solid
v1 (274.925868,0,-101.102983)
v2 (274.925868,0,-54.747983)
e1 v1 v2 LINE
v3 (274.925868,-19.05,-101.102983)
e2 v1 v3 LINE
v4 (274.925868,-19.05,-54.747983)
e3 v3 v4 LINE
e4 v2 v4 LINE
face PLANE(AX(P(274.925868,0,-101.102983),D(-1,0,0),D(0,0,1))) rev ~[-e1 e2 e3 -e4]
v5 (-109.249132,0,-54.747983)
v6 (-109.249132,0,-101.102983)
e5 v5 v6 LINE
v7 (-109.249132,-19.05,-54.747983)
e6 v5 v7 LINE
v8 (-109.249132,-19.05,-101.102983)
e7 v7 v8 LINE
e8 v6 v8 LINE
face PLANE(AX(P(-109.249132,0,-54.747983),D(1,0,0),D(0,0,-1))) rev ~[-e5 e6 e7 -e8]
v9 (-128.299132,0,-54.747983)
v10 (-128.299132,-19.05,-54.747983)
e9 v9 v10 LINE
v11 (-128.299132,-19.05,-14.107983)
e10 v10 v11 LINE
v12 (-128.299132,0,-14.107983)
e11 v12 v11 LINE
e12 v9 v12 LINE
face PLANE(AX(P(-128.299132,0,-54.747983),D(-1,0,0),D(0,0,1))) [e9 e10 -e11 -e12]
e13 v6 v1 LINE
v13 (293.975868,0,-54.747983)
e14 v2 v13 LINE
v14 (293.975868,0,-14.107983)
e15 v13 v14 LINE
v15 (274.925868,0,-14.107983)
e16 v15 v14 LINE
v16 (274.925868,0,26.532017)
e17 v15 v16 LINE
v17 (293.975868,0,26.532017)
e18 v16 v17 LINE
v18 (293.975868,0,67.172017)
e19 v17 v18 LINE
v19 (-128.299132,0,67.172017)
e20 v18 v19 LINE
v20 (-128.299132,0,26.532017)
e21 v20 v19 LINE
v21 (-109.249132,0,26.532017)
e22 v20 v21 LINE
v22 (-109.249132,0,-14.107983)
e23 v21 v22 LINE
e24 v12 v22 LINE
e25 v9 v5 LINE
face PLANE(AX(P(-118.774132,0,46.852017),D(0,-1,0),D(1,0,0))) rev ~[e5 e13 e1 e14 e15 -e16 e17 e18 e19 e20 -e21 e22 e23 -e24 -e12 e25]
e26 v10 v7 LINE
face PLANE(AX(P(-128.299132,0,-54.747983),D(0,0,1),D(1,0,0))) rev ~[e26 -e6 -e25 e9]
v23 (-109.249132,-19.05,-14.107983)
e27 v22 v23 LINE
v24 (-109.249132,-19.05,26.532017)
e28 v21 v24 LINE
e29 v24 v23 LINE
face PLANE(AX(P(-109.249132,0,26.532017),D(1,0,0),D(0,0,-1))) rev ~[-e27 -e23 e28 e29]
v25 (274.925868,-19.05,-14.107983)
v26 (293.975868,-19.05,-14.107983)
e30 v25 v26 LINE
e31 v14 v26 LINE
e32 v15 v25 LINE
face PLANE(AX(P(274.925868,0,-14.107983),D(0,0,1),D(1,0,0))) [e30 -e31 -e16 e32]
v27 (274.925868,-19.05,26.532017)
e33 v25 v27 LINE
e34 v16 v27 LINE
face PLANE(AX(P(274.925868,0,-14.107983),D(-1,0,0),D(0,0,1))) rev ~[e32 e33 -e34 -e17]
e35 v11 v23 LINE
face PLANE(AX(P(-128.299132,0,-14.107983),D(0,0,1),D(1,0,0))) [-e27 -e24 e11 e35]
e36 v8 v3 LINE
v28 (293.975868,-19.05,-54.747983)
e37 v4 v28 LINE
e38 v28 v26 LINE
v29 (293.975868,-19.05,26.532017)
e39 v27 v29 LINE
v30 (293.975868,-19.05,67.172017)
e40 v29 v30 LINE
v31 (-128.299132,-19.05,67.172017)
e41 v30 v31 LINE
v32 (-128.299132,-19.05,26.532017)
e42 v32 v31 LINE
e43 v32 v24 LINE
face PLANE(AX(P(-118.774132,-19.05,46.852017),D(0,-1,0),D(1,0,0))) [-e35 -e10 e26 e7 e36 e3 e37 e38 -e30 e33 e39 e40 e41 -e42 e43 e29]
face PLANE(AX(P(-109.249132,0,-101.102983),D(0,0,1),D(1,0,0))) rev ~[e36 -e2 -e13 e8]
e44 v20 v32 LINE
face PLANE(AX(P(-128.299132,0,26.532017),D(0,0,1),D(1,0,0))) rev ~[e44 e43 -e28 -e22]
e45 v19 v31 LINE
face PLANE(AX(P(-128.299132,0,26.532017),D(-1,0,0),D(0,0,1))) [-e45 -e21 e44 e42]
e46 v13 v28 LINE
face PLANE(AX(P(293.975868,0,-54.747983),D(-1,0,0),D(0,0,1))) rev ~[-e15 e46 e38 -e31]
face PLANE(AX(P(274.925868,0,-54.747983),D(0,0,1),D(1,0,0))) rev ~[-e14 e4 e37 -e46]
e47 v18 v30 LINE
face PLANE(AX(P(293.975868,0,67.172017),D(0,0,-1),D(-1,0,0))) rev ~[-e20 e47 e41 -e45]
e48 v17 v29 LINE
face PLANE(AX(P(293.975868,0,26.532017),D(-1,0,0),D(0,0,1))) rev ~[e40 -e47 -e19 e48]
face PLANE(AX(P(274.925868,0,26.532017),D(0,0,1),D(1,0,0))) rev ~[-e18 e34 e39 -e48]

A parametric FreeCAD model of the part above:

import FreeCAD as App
import Part
import Sketcher

V = App.Vector
Q = App.Units.Quantity


def add_polygon(sketch, points):
    """Adds a closed chain of lines whose ends are joined by coincident constraints."""
    first, n = sketch.GeometryCount, len(points)
    for a, b in zip(points, points[1:] + points[:1]):
        sketch.addGeometry(Part.LineSegment(App.Vector(*a, 0), App.Vector(*b, 0)), False)
    for i in range(n):
        sketch.addConstraint(Sketcher.Constraint("Coincident", first + i, 2, first + (i + 1) % n, 1))

doc = App.newDocument("Part")
body = doc.addObject("PartDesign::Body", "Body")

# Sketch on XZ plane
sketch1 = body.newObject("Sketcher::SketchObject", "Sketch")
sketch1.AttachmentSupport = (doc.getObject("XZ_Plane"), [""])
sketch1.MapMode = "FlatFace"
add_polygon(sketch1, [(-128, 67), (-128, 27), (-109, 27), (-109, -14), (-128, -14), (-128, -55), (-109, -55), (-109, -101), (275, -101), (275, -55), (294, -55), (294, -14), (275, -14), (275, 27), (294, 27), (294, 67)])  # lines 0-15
sketch1.addConstraint(Sketcher.Constraint("Vertical", 0))
sketch1.addConstraint(Sketcher.Constraint("Horizontal", 1))
sketch1.addConstraint(Sketcher.Constraint("Vertical", 2))
sketch1.addConstraint(Sketcher.Constraint("Horizontal", 3))
sketch1.addConstraint(Sketcher.Constraint("Vertical", 4))
sketch1.addConstraint(Sketcher.Constraint("Horizontal", 5))
sketch1.addConstraint(Sketcher.Constraint("Vertical", 6))
sketch1.addConstraint(Sketcher.Constraint("Horizontal", 7))
sketch1.addConstraint(Sketcher.Constraint("Vertical", 8))
sketch1.addConstraint(Sketcher.Constraint("Horizontal", 9))
sketch1.addConstraint(Sketcher.Constraint("Vertical", 10))
sketch1.addConstraint(Sketcher.Constraint("Horizontal", 11))
sketch1.addConstraint(Sketcher.Constraint("Vertical", 12))
sketch1.addConstraint(Sketcher.Constraint("Horizontal", 13))
sketch1.addConstraint(Sketcher.Constraint("Vertical", 14))
sketch1.addConstraint(Sketcher.Constraint("Horizontal", 15))
sketch1.addConstraint(Sketcher.Constraint("Horizontal", 5, 2, 8, 2))
sketch1.addConstraint(Sketcher.Constraint("Horizontal", 3, 2, 10, 2))
sketch1.addConstraint(Sketcher.Constraint("Horizontal", 1, 2, 12, 2))
sketch1.addConstraint(Sketcher.Constraint("Vertical", 0, 2, 3, 2))
sketch1.addConstraint(Sketcher.Constraint("Vertical", 2, 2, 5, 2))
sketch1.addConstraint(Sketcher.Constraint("Vertical", 8, 2, 11, 2))
sketch1.addConstraint(Sketcher.Constraint("Vertical", 10, 2, 13, 2))
sketch1.addConstraint(Sketcher.Constraint("Equal", 5, 9))
sketch1.addConstraint(Sketcher.Constraint("Equal", 0, 2))
sketch1.addConstraint(Sketcher.Constraint("Equal", 2, 4))
sketch1.addConstraint(Sketcher.Constraint("DistanceY", 0, 2, 0, 1, Q("1.6 in")))
sketch1.addConstraint(Sketcher.Constraint("DistanceX", 1, 1, 1, 2, Q("0.75 in")))
sketch1.addConstraint(Sketcher.Constraint("DistanceX", 7, 1, 7, 2, Q("15.125 in")))
sketch1.addConstraint(Sketcher.Constraint("DistanceY", 6, 2, 6, 1, Q("1.825 in")))
sketch1.addConstraint(Sketcher.Constraint("DistanceX", 0, 2, -1, 1, 128.299132))
sketch1.addConstraint(Sketcher.Constraint("DistanceY", -1, 1, 0, 2, 26.532017))
pad1 = body.newObject("PartDesign::Pad", "Pad")
pad1.Profile = sketch1
pad1.Length = Q("0.75 in")

doc.recompute()
